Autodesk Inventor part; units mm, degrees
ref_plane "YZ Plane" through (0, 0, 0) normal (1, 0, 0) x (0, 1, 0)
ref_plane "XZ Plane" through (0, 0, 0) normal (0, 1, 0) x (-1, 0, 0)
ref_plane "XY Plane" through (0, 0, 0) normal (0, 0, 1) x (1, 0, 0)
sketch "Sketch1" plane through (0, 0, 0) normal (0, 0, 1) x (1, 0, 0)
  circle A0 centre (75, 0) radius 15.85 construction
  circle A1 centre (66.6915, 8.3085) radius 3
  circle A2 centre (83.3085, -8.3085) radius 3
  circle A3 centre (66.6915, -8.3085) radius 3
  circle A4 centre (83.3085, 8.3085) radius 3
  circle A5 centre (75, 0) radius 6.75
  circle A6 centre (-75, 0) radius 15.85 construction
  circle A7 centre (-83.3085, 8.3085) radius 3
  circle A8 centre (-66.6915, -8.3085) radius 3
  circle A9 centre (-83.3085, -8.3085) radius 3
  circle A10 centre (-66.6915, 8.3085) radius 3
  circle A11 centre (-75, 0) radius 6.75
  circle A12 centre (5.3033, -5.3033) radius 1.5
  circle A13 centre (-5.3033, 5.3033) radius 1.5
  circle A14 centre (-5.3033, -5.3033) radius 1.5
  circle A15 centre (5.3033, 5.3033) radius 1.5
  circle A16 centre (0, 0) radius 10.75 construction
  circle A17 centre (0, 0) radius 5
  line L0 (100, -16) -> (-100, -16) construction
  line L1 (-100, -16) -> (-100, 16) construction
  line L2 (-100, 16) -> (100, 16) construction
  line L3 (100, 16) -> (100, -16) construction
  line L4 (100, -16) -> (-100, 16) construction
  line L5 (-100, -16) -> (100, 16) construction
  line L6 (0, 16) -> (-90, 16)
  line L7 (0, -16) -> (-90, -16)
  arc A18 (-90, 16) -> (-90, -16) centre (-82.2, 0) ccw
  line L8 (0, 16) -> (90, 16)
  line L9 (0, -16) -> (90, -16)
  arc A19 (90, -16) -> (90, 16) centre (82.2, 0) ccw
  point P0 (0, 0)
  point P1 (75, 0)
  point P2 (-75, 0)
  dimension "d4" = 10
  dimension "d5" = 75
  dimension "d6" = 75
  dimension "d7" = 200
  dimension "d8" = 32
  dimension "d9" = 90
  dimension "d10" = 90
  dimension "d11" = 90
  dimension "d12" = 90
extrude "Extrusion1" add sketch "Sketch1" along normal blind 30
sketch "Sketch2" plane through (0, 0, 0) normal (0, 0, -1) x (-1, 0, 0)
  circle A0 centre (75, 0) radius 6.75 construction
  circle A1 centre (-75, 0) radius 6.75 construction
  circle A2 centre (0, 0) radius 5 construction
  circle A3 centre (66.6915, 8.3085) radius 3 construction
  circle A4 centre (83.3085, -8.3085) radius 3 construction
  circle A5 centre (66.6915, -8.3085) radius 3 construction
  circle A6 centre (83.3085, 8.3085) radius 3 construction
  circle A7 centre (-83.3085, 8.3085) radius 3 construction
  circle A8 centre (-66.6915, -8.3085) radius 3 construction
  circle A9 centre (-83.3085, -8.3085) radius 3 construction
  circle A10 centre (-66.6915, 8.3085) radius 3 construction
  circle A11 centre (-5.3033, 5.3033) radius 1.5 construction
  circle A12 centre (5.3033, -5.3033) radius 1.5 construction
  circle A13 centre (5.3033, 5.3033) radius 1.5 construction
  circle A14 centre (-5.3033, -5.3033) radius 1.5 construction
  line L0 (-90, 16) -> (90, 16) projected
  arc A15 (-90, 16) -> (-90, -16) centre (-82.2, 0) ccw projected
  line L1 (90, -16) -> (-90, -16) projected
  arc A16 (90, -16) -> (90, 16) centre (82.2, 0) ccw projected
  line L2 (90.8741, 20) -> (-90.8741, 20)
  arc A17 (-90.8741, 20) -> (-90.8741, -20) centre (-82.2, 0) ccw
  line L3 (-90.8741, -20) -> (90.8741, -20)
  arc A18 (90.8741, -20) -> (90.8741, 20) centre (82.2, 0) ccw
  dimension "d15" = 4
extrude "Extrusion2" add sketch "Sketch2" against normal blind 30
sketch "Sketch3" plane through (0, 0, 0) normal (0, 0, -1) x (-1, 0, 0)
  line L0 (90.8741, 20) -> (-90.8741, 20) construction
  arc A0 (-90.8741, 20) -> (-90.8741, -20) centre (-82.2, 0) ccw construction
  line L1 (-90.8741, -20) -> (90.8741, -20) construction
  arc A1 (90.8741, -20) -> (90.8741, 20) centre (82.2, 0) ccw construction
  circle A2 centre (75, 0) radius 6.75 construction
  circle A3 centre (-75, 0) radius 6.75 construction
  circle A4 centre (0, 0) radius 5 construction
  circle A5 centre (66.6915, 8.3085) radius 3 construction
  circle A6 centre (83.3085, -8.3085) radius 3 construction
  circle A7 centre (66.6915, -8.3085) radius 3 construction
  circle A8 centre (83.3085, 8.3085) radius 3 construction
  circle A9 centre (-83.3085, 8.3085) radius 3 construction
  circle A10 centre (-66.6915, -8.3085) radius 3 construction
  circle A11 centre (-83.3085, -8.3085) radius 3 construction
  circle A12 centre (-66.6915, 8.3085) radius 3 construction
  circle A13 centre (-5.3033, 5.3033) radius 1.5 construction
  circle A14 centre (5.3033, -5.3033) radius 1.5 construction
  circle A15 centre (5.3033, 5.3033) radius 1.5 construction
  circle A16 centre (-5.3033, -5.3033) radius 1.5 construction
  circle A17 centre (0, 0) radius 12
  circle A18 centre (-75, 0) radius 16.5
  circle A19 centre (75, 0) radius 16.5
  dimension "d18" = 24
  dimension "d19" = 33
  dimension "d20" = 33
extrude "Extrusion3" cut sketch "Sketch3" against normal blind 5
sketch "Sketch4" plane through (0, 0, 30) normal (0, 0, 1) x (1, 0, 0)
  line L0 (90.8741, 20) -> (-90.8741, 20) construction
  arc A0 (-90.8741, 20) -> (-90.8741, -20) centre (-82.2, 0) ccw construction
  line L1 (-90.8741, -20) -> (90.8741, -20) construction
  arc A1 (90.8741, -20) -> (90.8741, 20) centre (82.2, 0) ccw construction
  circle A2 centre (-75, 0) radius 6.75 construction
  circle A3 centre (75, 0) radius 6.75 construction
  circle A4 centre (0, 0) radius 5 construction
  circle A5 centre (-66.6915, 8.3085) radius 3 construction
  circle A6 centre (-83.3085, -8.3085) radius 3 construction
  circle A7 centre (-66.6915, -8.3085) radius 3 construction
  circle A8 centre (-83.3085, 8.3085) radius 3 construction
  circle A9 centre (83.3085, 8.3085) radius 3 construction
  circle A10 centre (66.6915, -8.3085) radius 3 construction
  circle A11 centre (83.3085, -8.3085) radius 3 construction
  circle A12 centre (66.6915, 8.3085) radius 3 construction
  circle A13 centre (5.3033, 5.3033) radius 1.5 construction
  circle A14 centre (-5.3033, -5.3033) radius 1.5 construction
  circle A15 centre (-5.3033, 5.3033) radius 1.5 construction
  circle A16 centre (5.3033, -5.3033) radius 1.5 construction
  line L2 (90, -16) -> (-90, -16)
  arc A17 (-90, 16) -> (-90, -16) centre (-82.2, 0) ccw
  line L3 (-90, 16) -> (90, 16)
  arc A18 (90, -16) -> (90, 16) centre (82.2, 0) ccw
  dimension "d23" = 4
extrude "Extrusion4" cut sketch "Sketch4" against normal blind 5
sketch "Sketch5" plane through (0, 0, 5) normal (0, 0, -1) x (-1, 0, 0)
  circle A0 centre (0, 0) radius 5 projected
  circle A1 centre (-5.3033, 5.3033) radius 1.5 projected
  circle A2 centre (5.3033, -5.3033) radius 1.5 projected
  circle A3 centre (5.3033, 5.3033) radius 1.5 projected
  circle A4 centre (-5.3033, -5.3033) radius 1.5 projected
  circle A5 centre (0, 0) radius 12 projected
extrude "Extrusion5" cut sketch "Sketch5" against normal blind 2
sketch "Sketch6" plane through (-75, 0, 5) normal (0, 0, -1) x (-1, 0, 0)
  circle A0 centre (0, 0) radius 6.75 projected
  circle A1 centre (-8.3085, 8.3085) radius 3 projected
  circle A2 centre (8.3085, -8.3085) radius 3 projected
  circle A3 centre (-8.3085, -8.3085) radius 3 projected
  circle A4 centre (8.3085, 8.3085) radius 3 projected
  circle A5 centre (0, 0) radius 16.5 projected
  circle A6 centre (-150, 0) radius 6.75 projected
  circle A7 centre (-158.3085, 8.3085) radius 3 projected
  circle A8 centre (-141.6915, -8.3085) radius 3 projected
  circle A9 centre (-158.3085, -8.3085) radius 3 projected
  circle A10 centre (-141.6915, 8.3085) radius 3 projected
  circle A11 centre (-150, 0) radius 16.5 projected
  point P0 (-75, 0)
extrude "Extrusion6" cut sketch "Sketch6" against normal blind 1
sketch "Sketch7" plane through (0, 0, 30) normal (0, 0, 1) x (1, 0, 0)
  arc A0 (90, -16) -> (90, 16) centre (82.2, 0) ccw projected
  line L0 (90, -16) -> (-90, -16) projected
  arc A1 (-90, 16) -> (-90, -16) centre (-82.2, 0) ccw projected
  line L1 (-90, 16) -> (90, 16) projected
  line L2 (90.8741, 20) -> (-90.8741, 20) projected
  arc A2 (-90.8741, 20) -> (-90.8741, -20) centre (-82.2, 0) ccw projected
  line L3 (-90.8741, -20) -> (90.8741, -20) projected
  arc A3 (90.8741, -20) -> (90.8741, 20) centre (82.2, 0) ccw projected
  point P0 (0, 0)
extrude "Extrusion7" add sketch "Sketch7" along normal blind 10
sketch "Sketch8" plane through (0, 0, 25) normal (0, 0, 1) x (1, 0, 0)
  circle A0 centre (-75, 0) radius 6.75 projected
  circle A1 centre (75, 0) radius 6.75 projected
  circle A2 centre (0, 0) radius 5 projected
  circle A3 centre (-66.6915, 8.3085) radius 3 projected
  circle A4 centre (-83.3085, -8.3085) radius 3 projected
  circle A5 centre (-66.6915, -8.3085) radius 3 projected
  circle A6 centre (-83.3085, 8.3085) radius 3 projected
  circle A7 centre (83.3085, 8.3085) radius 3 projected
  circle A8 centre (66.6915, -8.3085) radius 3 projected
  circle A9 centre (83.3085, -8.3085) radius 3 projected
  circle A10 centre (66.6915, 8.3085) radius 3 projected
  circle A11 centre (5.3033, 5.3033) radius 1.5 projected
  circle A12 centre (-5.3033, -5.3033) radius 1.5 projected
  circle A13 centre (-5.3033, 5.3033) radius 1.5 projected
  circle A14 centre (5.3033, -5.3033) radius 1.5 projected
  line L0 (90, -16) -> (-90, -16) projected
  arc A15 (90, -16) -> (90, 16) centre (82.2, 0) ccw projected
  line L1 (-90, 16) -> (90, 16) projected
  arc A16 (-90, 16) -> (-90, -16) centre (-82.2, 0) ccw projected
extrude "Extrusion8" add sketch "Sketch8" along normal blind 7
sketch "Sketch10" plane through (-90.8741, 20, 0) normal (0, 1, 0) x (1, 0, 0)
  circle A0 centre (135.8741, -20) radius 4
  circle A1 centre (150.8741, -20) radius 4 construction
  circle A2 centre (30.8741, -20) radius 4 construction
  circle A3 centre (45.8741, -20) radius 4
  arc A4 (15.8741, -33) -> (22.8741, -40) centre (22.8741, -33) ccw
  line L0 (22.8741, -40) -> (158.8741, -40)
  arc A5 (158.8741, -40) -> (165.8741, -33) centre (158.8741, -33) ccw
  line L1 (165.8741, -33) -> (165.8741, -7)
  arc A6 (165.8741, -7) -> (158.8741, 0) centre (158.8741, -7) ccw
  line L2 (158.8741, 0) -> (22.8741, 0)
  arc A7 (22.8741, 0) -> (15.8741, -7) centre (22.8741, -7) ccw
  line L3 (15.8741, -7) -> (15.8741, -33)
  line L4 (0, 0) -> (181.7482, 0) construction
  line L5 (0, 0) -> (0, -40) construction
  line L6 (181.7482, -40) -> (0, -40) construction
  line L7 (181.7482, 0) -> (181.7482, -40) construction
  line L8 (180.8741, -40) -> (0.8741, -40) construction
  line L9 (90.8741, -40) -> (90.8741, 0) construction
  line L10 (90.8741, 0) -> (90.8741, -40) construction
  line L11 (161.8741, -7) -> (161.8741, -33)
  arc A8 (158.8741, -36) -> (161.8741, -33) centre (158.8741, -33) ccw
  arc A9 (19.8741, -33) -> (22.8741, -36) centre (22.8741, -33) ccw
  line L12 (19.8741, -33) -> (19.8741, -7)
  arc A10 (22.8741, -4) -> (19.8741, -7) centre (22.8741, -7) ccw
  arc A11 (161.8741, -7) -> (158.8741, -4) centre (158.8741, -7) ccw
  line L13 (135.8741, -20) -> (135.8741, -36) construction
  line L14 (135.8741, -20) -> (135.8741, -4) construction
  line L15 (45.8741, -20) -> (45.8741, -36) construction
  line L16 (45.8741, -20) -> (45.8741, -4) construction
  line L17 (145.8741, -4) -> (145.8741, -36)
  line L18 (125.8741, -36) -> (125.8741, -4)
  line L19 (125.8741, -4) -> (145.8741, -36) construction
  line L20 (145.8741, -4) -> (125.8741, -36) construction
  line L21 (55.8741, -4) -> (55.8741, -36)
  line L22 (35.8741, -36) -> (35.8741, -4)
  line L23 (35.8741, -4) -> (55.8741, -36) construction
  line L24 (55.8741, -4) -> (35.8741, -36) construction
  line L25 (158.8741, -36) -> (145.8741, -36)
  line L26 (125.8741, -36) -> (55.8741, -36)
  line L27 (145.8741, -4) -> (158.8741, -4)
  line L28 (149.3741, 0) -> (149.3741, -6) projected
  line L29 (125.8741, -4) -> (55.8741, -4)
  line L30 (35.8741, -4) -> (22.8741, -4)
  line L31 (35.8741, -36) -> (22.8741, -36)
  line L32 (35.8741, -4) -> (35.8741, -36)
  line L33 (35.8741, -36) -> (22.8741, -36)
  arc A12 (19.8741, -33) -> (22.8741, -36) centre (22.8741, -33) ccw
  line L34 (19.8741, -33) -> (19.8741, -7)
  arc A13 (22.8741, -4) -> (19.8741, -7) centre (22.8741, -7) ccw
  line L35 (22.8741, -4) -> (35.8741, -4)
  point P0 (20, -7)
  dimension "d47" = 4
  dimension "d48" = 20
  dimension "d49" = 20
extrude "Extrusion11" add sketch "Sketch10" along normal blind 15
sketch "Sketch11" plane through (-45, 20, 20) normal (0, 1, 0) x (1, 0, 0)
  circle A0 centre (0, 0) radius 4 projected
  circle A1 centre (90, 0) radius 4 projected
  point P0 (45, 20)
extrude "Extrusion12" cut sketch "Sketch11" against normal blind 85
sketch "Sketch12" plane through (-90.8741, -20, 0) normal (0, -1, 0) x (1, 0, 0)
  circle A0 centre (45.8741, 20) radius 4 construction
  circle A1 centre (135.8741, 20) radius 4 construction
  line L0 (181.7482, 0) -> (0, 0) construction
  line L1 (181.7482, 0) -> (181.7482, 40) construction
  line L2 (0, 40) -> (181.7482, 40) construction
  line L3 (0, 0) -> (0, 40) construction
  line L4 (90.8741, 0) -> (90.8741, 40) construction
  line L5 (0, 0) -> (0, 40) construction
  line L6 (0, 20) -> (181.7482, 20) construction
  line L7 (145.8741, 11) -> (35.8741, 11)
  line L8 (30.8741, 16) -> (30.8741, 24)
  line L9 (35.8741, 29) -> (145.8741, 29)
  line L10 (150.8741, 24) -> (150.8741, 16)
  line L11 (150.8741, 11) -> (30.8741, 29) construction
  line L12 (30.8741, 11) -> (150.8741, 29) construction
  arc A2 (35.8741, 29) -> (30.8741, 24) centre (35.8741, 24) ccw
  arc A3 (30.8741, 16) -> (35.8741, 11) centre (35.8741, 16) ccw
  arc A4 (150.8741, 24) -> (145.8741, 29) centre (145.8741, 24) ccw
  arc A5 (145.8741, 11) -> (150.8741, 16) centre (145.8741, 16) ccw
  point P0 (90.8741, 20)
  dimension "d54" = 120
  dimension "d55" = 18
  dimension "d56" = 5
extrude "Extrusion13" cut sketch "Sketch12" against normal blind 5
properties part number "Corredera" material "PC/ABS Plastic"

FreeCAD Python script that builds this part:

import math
import FreeCAD as App
import Part
import Sketcher
from FreeCAD import Vector

doc = App.newDocument("Part")
params = doc.addObject("Spreadsheet::Sheet", "Params")
for row, (alias, value) in enumerate([
    ("sketch1_diameter", "10 mm"),
    ("sketch1_diameter2", "6 mm"),
    ("sketch1_diameter3", "3 mm"),
    ("sketch1_diameter4", "13.5 mm"),
    ("sketch1_radius", "17.8 mm"),
    ("pad1_length", "30 mm"),
    ("sketch2_radius", "21.8 mm"),
    ("sketch2_radius2", "17.8 mm"),
    ("sketch2_width", "180 mm"),
    ("pad2_length", "30 mm"),
    ("sketch3_diameter", "24 mm"),
    ("sketch3_diameter2", "33 mm"),
    ("pocket1_length", "5 mm"),
    ("sketch4_radius", "17.8 mm"),
    ("sketch4_width", "180 mm"),
    ("pocket2_length", "5 mm"),
    ("sketch5_diameter", "24 mm"),
    ("sketch5_diameter2", "3 mm"),
    ("sketch5_diameter3", "10 mm"),
    ("pocket3_length", "2 mm"),
    ("sketch6_diameter", "33 mm"),
    ("sketch6_diameter2", "6 mm"),
    ("sketch6_diameter3", "13.5 mm"),
    ("pocket4_length", "1 mm"),
    ("sketch7_radius", "21.8 mm"),
    ("sketch7_radius2", "17.8 mm"),
    ("sketch7_width", "180 mm"),
    ("pad3_length", "10 mm"),
    ("sketch8_diameter", "6 mm"),
    ("sketch8_diameter2", "3 mm"),
    ("sketch8_diameter3", "10 mm"),
    ("sketch8_diameter4", "13.5 mm"),
    ("sketch8_radius", "17.8 mm"),
    ("pad4_length", "7 mm"),
    ("sketch9_diameter", "8 mm"),
    ("sketch9_radius", "7 mm"),
    ("sketch9_width", "136 mm"),
    ("sketch9_width2", "13 mm"),
    ("sketch9_width3", "70 mm"),
    ("pad5_length", "15 mm"),
    ("sketch10_diameter", "8 mm"),
    ("pocket5_length", "85 mm"),
    ("sketch11_radius", "5 mm"),
    ("sketch11_width", "110 mm"),
    ("pocket6_length", "5 mm"),
], start=1):
    params.set(f"A{row}", alias)
    params.set(f"B{row}", "=" + value)
    params.setAlias(f"B{row}", alias)

body = doc.addObject("PartDesign::Body", "Body")

# Sketch on XY plane
sketch1 = body.newObject("Sketcher::SketchObject", "Sketch")
sketch1.AttachmentSupport = (doc.getObject("XY_Plane"), [""])
sketch1.MapMode = "FlatFace"
sketch1.addGeometry(Part.LineSegment(Vector(90, 16, 0), Vector(-90, 16, 0)), False)
sketch1.addGeometry(Part.ArcOfCircle(Part.Circle(Vector(-82.2, 0, 0), Vector(0, 0, 1), 17.8), math.radians(115.989234), math.radians(244.010766)), False)
sketch1.addGeometry(Part.LineSegment(Vector(-90, -16, 0), Vector(90, -16, 0)), False)
sketch1.addGeometry(Part.ArcOfCircle(Part.Circle(Vector(82.2, 0, 0), Vector(0, 0, 1), 17.8), math.radians(-64.010766), math.radians(64.010766)), False)
sketch1.addGeometry(Part.Circle(Vector(-83.3085, -8.3085, 0), Vector(0, 0, 1), 3), False)
sketch1.addGeometry(Part.Circle(Vector(-66.6915, -8.3085, 0), Vector(0, 0, 1), 3), False)
sketch1.addGeometry(Part.Circle(Vector(-5.3033, -5.3033, 0), Vector(0, 0, 1), 1.5), False)
sketch1.addGeometry(Part.Circle(Vector(66.6915, -8.3085, 0), Vector(0, 0, 1), 3), False)
sketch1.addGeometry(Part.Circle(Vector(83.3085, -8.3085, 0), Vector(0, 0, 1), 3), False)
sketch1.addGeometry(Part.Circle(Vector(5.3033, -5.3033, 0), Vector(0, 0, 1), 1.5), False)
sketch1.addGeometry(Part.Circle(Vector(-75, 0, 0), Vector(0, 0, 1), 6.75), False)
sketch1.addGeometry(Part.Circle(Vector(-5.3033, 5.3033, 0), Vector(0, 0, 1), 1.5), False)
sketch1.addGeometry(Part.Circle(Vector(-83.3085, 8.3085, 0), Vector(0, 0, 1), 3), False)
sketch1.addGeometry(Part.Circle(Vector(-66.6915, 8.3085, 0), Vector(0, 0, 1), 3), False)
sketch1.addGeometry(Part.Circle(Vector(0, 0, 0), Vector(0, 0, 1), 5), False)
sketch1.addGeometry(Part.Circle(Vector(5.3033, 5.3033, 0), Vector(0, 0, 1), 1.5), False)
sketch1.addGeometry(Part.Circle(Vector(75, 0, 0), Vector(0, 0, 1), 6.75), False)
sketch1.addGeometry(Part.Circle(Vector(66.6915, 8.3085, 0), Vector(0, 0, 1), 3), False)
sketch1.addGeometry(Part.Circle(Vector(83.3085, 8.3085, 0), Vector(0, 0, 1), 3), False)
sketch1.addConstraint(Sketcher.Constraint("Coincident", 0, 2, 1, 1))
sketch1.addConstraint(Sketcher.Constraint("Coincident", 1, 2, 2, 1))
sketch1.addConstraint(Sketcher.Constraint("Coincident", 2, 2, 3, 1))
sketch1.addConstraint(Sketcher.Constraint("Coincident", 3, 2, 0, 1))
sketch1.addConstraint(Sketcher.Constraint("Horizontal", 0))
sketch1.addConstraint(Sketcher.Constraint("Horizontal", 2))
sketch1.addConstraint(Sketcher.Constraint("Coincident", 14, 3, -1, 1))
sketch1.addConstraint(Sketcher.Constraint("Equal", 1, 3))
sketch1.addConstraint(Sketcher.Constraint("Equal", 4, 5))
sketch1.addConstraint(Sketcher.Constraint("Equal", 5, 7))
sketch1.addConstraint(Sketcher.Constraint("Equal", 7, 8))
sketch1.addConstraint(Sketcher.Constraint("Equal", 6, 9))
sketch1.addConstraint(Sketcher.Constraint("Equal", 9, 11))
sketch1.addConstraint(Sketcher.Constraint("Equal", 8, 12))
sketch1.addConstraint(Sketcher.Constraint("Equal", 12, 13))
sketch1.addConstraint(Sketcher.Constraint("Equal", 11, 15))
sketch1.addConstraint(Sketcher.Constraint("Equal", 10, 16))
sketch1.addConstraint(Sketcher.Constraint("Equal", 13, 17))
sketch1.addConstraint(Sketcher.Constraint("Equal", 17, 18))
sketch1.addConstraint(Sketcher.Constraint("Symmetric", 1, 3, 3, 3, -1, 1))
sketch1.addConstraint(Sketcher.Constraint("Symmetric", 9, 3, 11, 3, -1, 1))
sketch1.addConstraint(Sketcher.Constraint("Symmetric", 8, 3, 12, 3, -1, 1))
sketch1.addConstraint(Sketcher.Constraint("Symmetric", 7, 3, 13, 3, -1, 1))
sketch1.addConstraint(Sketcher.Constraint("Symmetric", 6, 3, 15, 3, -1, 1))
sketch1.addConstraint(Sketcher.Constraint("Symmetric", 10, 3, 16, 3, -1, 1))
sketch1.addConstraint(Sketcher.Constraint("Symmetric", 5, 3, 17, 3, -1, 1))
sketch1.addConstraint(Sketcher.Constraint("Symmetric", 4, 3, 18, 3, -1, 1))
sketch1.addConstraint(Sketcher.Constraint("Symmetric", 5, 3, 7, 3, -2))
sketch1.addConstraint(Sketcher.Constraint("Symmetric", 4, 3, 8, 3, -2))
sketch1.addConstraint(Sketcher.Constraint("Symmetric", 6, 3, 9, 3, -2))
sketch1.addConstraint(Sketcher.Constraint("Symmetric", 0, 2, 1, 2, -1))
sketch1.addConstraint(Sketcher.Constraint("PointOnObject", 10, 3, -1))
sketch1.addConstraint(Sketcher.Constraint("Horizontal", 4, 3, 5, 3))
sketch1.addConstraint(Sketcher.Constraint("Diameter", 14, 10.0))
sketch1.addConstraint(Sketcher.Constraint("Diameter", 4, 6.0))
sketch1.addConstraint(Sketcher.Constraint("Diameter", 6, 3.0))
sketch1.addConstraint(Sketcher.Constraint("DistanceX", 10, 3, -1, 1, 75.0))
sketch1.addConstraint(Sketcher.Constraint("DistanceX", 0, 2, -1, 1, 90.0))
sketch1.addConstraint(Sketcher.Constraint("Diameter", 10, 13.5))
sketch1.addConstraint(Sketcher.Constraint("Radius", 1, 17.8))
sketch1.addConstraint(Sketcher.Constraint("DistanceY", -1, 1, 0, 2, 16.0))
sketch1.addConstraint(Sketcher.Constraint("DistanceX", 4, 3, 7, 3, 150.0))
sketch1.addConstraint(Sketcher.Constraint("DistanceX", 4, 3, 5, 3, 16.617))
sketch1.addConstraint(Sketcher.Constraint("DistanceY", 4, 3, 12, 3, 16.617))
sketch1.addConstraint(Sketcher.Constraint("DistanceX", 6, 3, -1, 1, 5.3033))
sketch1.addConstraint(Sketcher.Constraint("DistanceY", 6, 3, -1, 1, 5.3033))
sketch1.setExpression("Constraints[33]", "Params.sketch1_diameter")
sketch1.setExpression("Constraints[34]", "Params.sketch1_diameter2")
sketch1.setExpression("Constraints[35]", "Params.sketch1_diameter3")
sketch1.setExpression("Constraints[38]", "Params.sketch1_diameter4")
sketch1.setExpression("Constraints[39]", "Params.sketch1_radius")
pad1 = body.newObject("PartDesign::Pad", "Pad")
pad1.Profile = sketch1
pad1.setExpression("Length", "Params.pad1_length")

# Sketch on XY plane
sketch2 = body.newObject("Sketcher::SketchObject", "Sketch001")
sketch2.AttachmentSupport = (doc.getObject("XY_Plane"), [""])
sketch2.MapMode = "FlatFace"
sketch2.addGeometry(Part.ArcOfCircle(Part.Circle(Vector(-82.2, 0, 0), Vector(0, 0, 1), 21.8), math.radians(113.446619), math.radians(246.553381)), False)
sketch2.addGeometry(Part.LineSegment(Vector(-90.8741, 20, 0), Vector(90.8741, 20, 0)), False)
sketch2.addGeometry(Part.ArcOfCircle(Part.Circle(Vector(82.2, 0, 0), Vector(0, 0, 1), 21.8), math.radians(-66.553381), math.radians(66.553381)), False)
sketch2.addGeometry(Part.LineSegment(Vector(90.8741, -20, 0), Vector(-90.8741, -20, 0)), False)
sketch2.addGeometry(Part.ArcOfCircle(Part.Circle(Vector(82.2, 0, 0), Vector(0, 0, 1), 17.8), math.radians(-64.010766), math.radians(64.010766)), False)
sketch2.addGeometry(Part.LineSegment(Vector(90, 16, 0), Vector(-90, 16, 0)), False)
sketch2.addGeometry(Part.ArcOfCircle(Part.Circle(Vector(-82.2, 0, 0), Vector(0, 0, 1), 17.8), math.radians(115.989234), math.radians(244.010766)), False)
sketch2.addGeometry(Part.LineSegment(Vector(-90, -16, 0), Vector(90, -16, 0)), False)
sketch2.addConstraint(Sketcher.Constraint("Coincident", 0, 1, 1, 1))
sketch2.addConstraint(Sketcher.Constraint("Coincident", 1, 2, 2, 2))
sketch2.addConstraint(Sketcher.Constraint("Coincident", 2, 1, 3, 1))
sketch2.addConstraint(Sketcher.Constraint("Coincident", 3, 2, 0, 2))
sketch2.addConstraint(Sketcher.Constraint("Coincident", 4, 2, 5, 1))
sketch2.addConstraint(Sketcher.Constraint("Coincident", 5, 2, 6, 1))
sketch2.addConstraint(Sketcher.Constraint("Coincident", 6, 2, 7, 1))
sketch2.addConstraint(Sketcher.Constraint("Coincident", 7, 2, 4, 1))
sketch2.addConstraint(Sketcher.Constraint("Horizontal", 1))
sketch2.addConstraint(Sketcher.Constraint("Horizontal", 3))
sketch2.addConstraint(Sketcher.Constraint("Horizontal", 5))
sketch2.addConstraint(Sketcher.Constraint("Horizontal", 7))
sketch2.addConstraint(Sketcher.Constraint("Coincident", 4, 3, 2, 3))
sketch2.addConstraint(Sketcher.Constraint("Coincident", 6, 3, 0, 3))
sketch2.addConstraint(Sketcher.Constraint("Equal", 0, 2))
sketch2.addConstraint(Sketcher.Constraint("Equal", 4, 6))
sketch2.addConstraint(Sketcher.Constraint("Symmetric", 0, 3, 2, 3, -1, 1))
sketch2.addConstraint(Sketcher.Constraint("Symmetric", 1, 2, 2, 1, -1))
sketch2.addConstraint(Sketcher.Constraint("Vertical", 5, 2, 6, 2))
sketch2.addConstraint(Sketcher.Constraint("DistanceY", 4, 2, 1, 2, 4.0))
sketch2.addConstraint(Sketcher.Constraint("Radius", 0, 21.8))
sketch2.addConstraint(Sketcher.Constraint("Radius", 4, 17.8))
sketch2.addConstraint(Sketcher.Constraint("DistanceX", 5, 2, 5, 1, 180.0))
sketch2.addConstraint(Sketcher.Constraint("DistanceY", -1, 1, 0, 1, 20.0))
sketch2.setExpression("Constraints[20]", "Params.sketch2_radius")
sketch2.setExpression("Constraints[21]", "Params.sketch2_radius2")
sketch2.setExpression("Constraints[22]", "Params.sketch2_width")
pad2 = body.newObject("PartDesign::Pad", "Pad001")
pad2.Profile = sketch2
pad2.setExpression("Length", "Params.pad2_length")

# Sketch on XY plane
sketch3 = body.newObject("Sketcher::SketchObject", "Sketch002")
sketch3.AttachmentSupport = (doc.getObject("XY_Plane"), [""])
sketch3.MapMode = "FlatFace"
sketch3.addGeometry(Part.Circle(Vector(0, 0, 0), Vector(0, 0, 1), 12), False)
sketch3.addGeometry(Part.Circle(Vector(75, 0, 0), Vector(0, 0, 1), 16.5), False)
sketch3.addGeometry(Part.Circle(Vector(-75, 0, 0), Vector(0, 0, 1), 16.5), False)
sketch3.addConstraint(Sketcher.Constraint("Coincident", 0, 3, -1, 1))
sketch3.addConstraint(Sketcher.Constraint("Equal", 1, 2))
sketch3.addConstraint(Sketcher.Constraint("Symmetric", 1, 3, 2, 3, -1, 1))
sketch3.addConstraint(Sketcher.Constraint("PointOnObject", 1, 3, -1))
sketch3.addConstraint(Sketcher.Constraint("Diameter", 0, 24.0))
sketch3.addConstraint(Sketcher.Constraint("Diameter", 1, 33.0))
sketch3.addConstraint(Sketcher.Constraint("DistanceX", -1, 1, 1, 3, 75.0))
sketch3.setExpression("Constraints[4]", "Params.sketch3_diameter")
sketch3.setExpression("Constraints[5]", "Params.sketch3_diameter2")
pocket1 = body.newObject("PartDesign::Pocket", "Pocket")
pocket1.Profile = sketch3
pocket1.setExpression("Length", "Params.pocket1_length")
pocket1.Reversed = True

# Sketch on XY plane
sketch4 = body.newObject("Sketcher::SketchObject", "Sketch003")
sketch4.AttachmentSupport = (doc.getObject("XY_Plane"), [""])
sketch4.MapMode = "FlatFace"
sketch4.AttachmentOffset = App.Placement(Vector(0, 0, 30), App.Rotation())
sketch4.addGeometry(Part.LineSegment(Vector(-90, -16, 0), Vector(90, -16, 0)), False)
sketch4.addGeometry(Part.ArcOfCircle(Part.Circle(Vector(82.2, 0, 0), Vector(0, 0, 1), 17.8), math.radians(-64.010766), math.radians(64.010766)), False)
sketch4.addGeometry(Part.LineSegment(Vector(90, 16, 0), Vector(-90, 16, 0)), False)
sketch4.addGeometry(Part.ArcOfCircle(Part.Circle(Vector(-82.2, 0, 0), Vector(0, 0, 1), 17.8), math.radians(115.989234), math.radians(244.010766)), False)
sketch4.addConstraint(Sketcher.Constraint("Coincident", 0, 2, 1, 1))
sketch4.addConstraint(Sketcher.Constraint("Coincident", 1, 2, 2, 1))
sketch4.addConstraint(Sketcher.Constraint("Coincident", 2, 2, 3, 1))
sketch4.addConstraint(Sketcher.Constraint("Coincident", 3, 2, 0, 1))
sketch4.addConstraint(Sketcher.Constraint("Horizontal", 0))
sketch4.addConstraint(Sketcher.Constraint("Horizontal", 2))
sketch4.addConstraint(Sketcher.Constraint("Equal", 1, 3))
sketch4.addConstraint(Sketcher.Constraint("Symmetric", 1, 3, 3, 3, -1, 1))
sketch4.addConstraint(Sketcher.Constraint("Symmetric", 0, 2, 1, 2, -1))
sketch4.addConstraint(Sketcher.Constraint("Radius", 1, 17.8))
sketch4.addConstraint(Sketcher.Constraint("DistanceX", 0, 1, 0, 2, 180.0))
sketch4.addConstraint(Sketcher.Constraint("DistanceY", 0, 2, -1, 1, 16.0))
sketch4.setExpression("Constraints[9]", "Params.sketch4_radius")
sketch4.setExpression("Constraints[10]", "Params.sketch4_width")
pocket2 = body.newObject("PartDesign::Pocket", "Pocket001")
pocket2.Profile = sketch4
pocket2.setExpression("Length", "Params.pocket2_length")

# Sketch on XY plane
sketch5 = body.newObject("Sketcher::SketchObject", "Sketch004")
sketch5.AttachmentSupport = (doc.getObject("XY_Plane"), [""])
sketch5.MapMode = "FlatFace"
sketch5.AttachmentOffset = App.Placement(Vector(0, 0, 5), App.Rotation())
sketch5.addGeometry(Part.Circle(Vector(0, 0, 0), Vector(0, 0, 1), 12), False)
sketch5.addGeometry(Part.Circle(Vector(5.3033, -5.3033, 0), Vector(0, 0, 1), 1.5), False)
sketch5.addGeometry(Part.Circle(Vector(-5.3033, -5.3033, 0), Vector(0, 0, 1), 1.5), False)
sketch5.addGeometry(Part.Circle(Vector(5.3033, 5.3033, 0), Vector(0, 0, 1), 1.5), False)
sketch5.addGeometry(Part.Circle(Vector(0, 0, 0), Vector(0, 0, 1), 5), False)
sketch5.addGeometry(Part.Circle(Vector(-5.3033, 5.3033, 0), Vector(0, 0, 1), 1.5), False)
sketch5.addConstraint(Sketcher.Constraint("Coincident", 0, 3, -1, 1))
sketch5.addConstraint(Sketcher.Constraint("Coincident", 4, 3, -1, 1))
sketch5.addConstraint(Sketcher.Constraint("Equal", 1, 2))
sketch5.addConstraint(Sketcher.Constraint("Equal", 2, 3))
sketch5.addConstraint(Sketcher.Constraint("Equal", 3, 5))
sketch5.addConstraint(Sketcher.Constraint("Symmetric", 2, 3, 3, 3, -1, 1))
sketch5.addConstraint(Sketcher.Constraint("Symmetric", 1, 3, 5, 3, -1, 1))
sketch5.addConstraint(Sketcher.Constraint("Symmetric", 1, 3, 2, 3, -2))
sketch5.addConstraint(Sketcher.Constraint("Diameter", 0, 24.0))
sketch5.addConstraint(Sketcher.Constraint("Diameter", 1, 3.0))
sketch5.addConstraint(Sketcher.Constraint("Diameter", 4, 10.0))
sketch5.addConstraint(Sketcher.Constraint("DistanceX", -1, 1, 1, 3, 5.3033))
sketch5.addConstraint(Sketcher.Constraint("DistanceY", 1, 3, -1, 1, 5.3033))
sketch5.setExpression("Constraints[8]", "Params.sketch5_diameter")
sketch5.setExpression("Constraints[9]", "Params.sketch5_diameter2")
sketch5.setExpression("Constraints[10]", "Params.sketch5_diameter3")
pocket3 = body.newObject("PartDesign::Pocket", "Pocket002")
pocket3.Profile = sketch5
pocket3.setExpression("Length", "Params.pocket3_length")
pocket3.Reversed = True

# Sketch on XY plane
sketch6 = body.newObject("Sketcher::SketchObject", "Sketch005")
sketch6.AttachmentSupport = (doc.getObject("XY_Plane"), [""])
sketch6.MapMode = "FlatFace"
sketch6.AttachmentOffset = App.Placement(Vector(0, 0, 5), App.Rotation())
sketch6.addGeometry(Part.Circle(Vector(-75, 0, 0), Vector(0, 0, 1), 16.5), False)
sketch6.addGeometry(Part.Circle(Vector(-66.6915, -8.3085, 0), Vector(0, 0, 1), 3), False)
sketch6.addGeometry(Part.Circle(Vector(-83.3085, -8.3085, 0), Vector(0, 0, 1), 3), False)
sketch6.addGeometry(Part.Circle(Vector(-75, 0, 0), Vector(0, 0, 1), 6.75), False)
sketch6.addGeometry(Part.Circle(Vector(-66.6915, 8.3085, 0), Vector(0, 0, 1), 3), False)
sketch6.addGeometry(Part.Circle(Vector(-83.3085, 8.3085, 0), Vector(0, 0, 1), 3), False)
sketch6.addGeometry(Part.Circle(Vector(75, 0, 0), Vector(0, 0, 1), 16.5), False)
sketch6.addGeometry(Part.Circle(Vector(83.3085, -8.3085, 0), Vector(0, 0, 1), 3), False)
sketch6.addGeometry(Part.Circle(Vector(66.6915, -8.3085, 0), Vector(0, 0, 1), 3), False)
sketch6.addGeometry(Part.Circle(Vector(75, 0, 0), Vector(0, 0, 1), 6.75), False)
sketch6.addGeometry(Part.Circle(Vector(83.3085, 8.3085, 0), Vector(0, 0, 1), 3), False)
sketch6.addGeometry(Part.Circle(Vector(66.6915, 8.3085, 0), Vector(0, 0, 1), 3), False)
sketch6.addConstraint(Sketcher.Constraint("Coincident", 3, 3, 0, 3))
sketch6.addConstraint(Sketcher.Constraint("Coincident", 9, 3, 6, 3))
sketch6.addConstraint(Sketcher.Constraint("Equal", 1, 2))
sketch6.addConstraint(Sketcher.Constraint("Equal", 2, 4))
sketch6.addConstraint(Sketcher.Constraint("Equal", 4, 5))
sketch6.addConstraint(Sketcher.Constraint("Equal", 0, 6))
sketch6.addConstraint(Sketcher.Constraint("Equal", 5, 7))
sketch6.addConstraint(Sketcher.Constraint("Equal", 7, 8))
sketch6.addConstraint(Sketcher.Constraint("Equal", 3, 9))
sketch6.addConstraint(Sketcher.Constraint("Equal", 8, 10))
sketch6.addConstraint(Sketcher.Constraint("Equal", 10, 11))
sketch6.addConstraint(Sketcher.Constraint("Symmetric", 0, 3, 6, 3, -1, 1))
sketch6.addConstraint(Sketcher.Constraint("Symmetric", 5, 3, 7, 3, -1, 1))
sketch6.addConstraint(Sketcher.Constraint("Symmetric", 4, 3, 8, 3, -1, 1))
sketch6.addConstraint(Sketcher.Constraint("Symmetric", 2, 3, 10, 3, -1, 1))
sketch6.addConstraint(Sketcher.Constraint("Symmetric", 1, 3, 11, 3, -1, 1))
sketch6.addConstraint(Sketcher.Constraint("Symmetric", 2, 3, 7, 3, -2))
sketch6.addConstraint(Sketcher.Constraint("Symmetric", 1, 3, 8, 3, -2))
sketch6.addConstraint(Sketcher.Constraint("PointOnObject", 0, 3, -1))
sketch6.addConstraint(Sketcher.Constraint("Horizontal", 1, 3, 2, 3))
sketch6.addConstraint(Sketcher.Constraint("Diameter", 0, 33.0))
sketch6.addConstraint(Sketcher.Constraint("Diameter", 1, 6.0))
sketch6.addConstraint(Sketcher.Constraint("Diameter", 3, 13.5))
sketch6.addConstraint(Sketcher.Constraint("DistanceX", 0, 3, -1, 1, 75.0))
sketch6.addConstraint(Sketcher.Constraint("DistanceX", 1, 3, 7, 3, 150.0))
sketch6.addConstraint(Sketcher.Constraint("DistanceX", 2, 3, 1, 3, 16.617))
sketch6.addConstraint(Sketcher.Constraint("DistanceY", 1, 3, 4, 3, 16.617))
sketch6.setExpression("Constraints[20]", "Params.sketch6_diameter")
sketch6.setExpression("Constraints[21]", "Params.sketch6_diameter2")
sketch6.setExpression("Constraints[22]", "Params.sketch6_diameter3")
pocket4 = body.newObject("PartDesign::Pocket", "Pocket003")
pocket4.Profile = sketch6
pocket4.setExpression("Length", "Params.pocket4_length")
pocket4.Reversed = True

# Sketch on XY plane
sketch7 = body.newObject("Sketcher::SketchObject", "Sketch006")
sketch7.AttachmentSupport = (doc.getObject("XY_Plane"), [""])
sketch7.MapMode = "FlatFace"
sketch7.AttachmentOffset = App.Placement(Vector(0, 0, 30), App.Rotation())
sketch7.addGeometry(Part.ArcOfCircle(Part.Circle(Vector(82.2, 0, 0), Vector(0, 0, 1), 21.8), math.radians(-66.553381), math.radians(66.553381)), False)
sketch7.addGeometry(Part.LineSegment(Vector(90.8741, 20, 0), Vector(-90.8741, 20, 0)), False)
sketch7.addGeometry(Part.ArcOfCircle(Part.Circle(Vector(-82.2, 0, 0), Vector(0, 0, 1), 21.8), math.radians(113.446619), math.radians(246.553381)), False)
sketch7.addGeometry(Part.LineSegment(Vector(-90.8741, -20, 0), Vector(90.8741, -20, 0)), False)
sketch7.addGeometry(Part.ArcOfCircle(Part.Circle(Vector(82.2, 0, 0), Vector(0, 0, 1), 17.8), math.radians(-64.010766), math.radians(64.010766)), False)
sketch7.addGeometry(Part.LineSegment(Vector(90, -16, 0), Vector(-90, -16, 0)), False)
sketch7.addGeometry(Part.ArcOfCircle(Part.Circle(Vector(-82.2, 0, 0), Vector(0, 0, 1), 17.8), math.radians(115.989234), math.radians(244.010766)), False)
sketch7.addGeometry(Part.LineSegment(Vector(-90, 16, 0), Vector(90, 16, 0)), False)
sketch7.addConstraint(Sketcher.Constraint("Coincident", 0, 2, 1, 1))
sketch7.addConstraint(Sketcher.Constraint("Coincident", 1, 2, 2, 1))
sketch7.addConstraint(Sketcher.Constraint("Coincident", 2, 2, 3, 1))
sketch7.addConstraint(Sketcher.Constraint("Coincident", 3, 2, 0, 1))
sketch7.addConstraint(Sketcher.Constraint("Coincident", 4, 1, 5, 1))
sketch7.addConstraint(Sketcher.Constraint("Coincident", 5, 2, 6, 2))
sketch7.addConstraint(Sketcher.Constraint("Coincident", 6, 1, 7, 1))
sketch7.addConstraint(Sketcher.Constraint("Coincident", 7, 2, 4, 2))
sketch7.addConstraint(Sketcher.Constraint("Horizontal", 1))
sketch7.addConstraint(Sketcher.Constraint("Horizontal", 3))
sketch7.addConstraint(Sketcher.Constraint("Horizontal", 5))
sketch7.addConstraint(Sketcher.Constraint("Horizontal", 7))
sketch7.addConstraint(Sketcher.Constraint("Coincident", 4, 3, 0, 3))
sketch7.addConstraint(Sketcher.Constraint("Coincident", 6, 3, 2, 3))
sketch7.addConstraint(Sketcher.Constraint("Equal", 0, 2))
sketch7.addConstraint(Sketcher.Constraint("Equal", 4, 6))
sketch7.addConstraint(Sketcher.Constraint("Symmetric", 0, 3, 2, 3, -1, 1))
sketch7.addConstraint(Sketcher.Constraint("Symmetric", 1, 2, 2, 2, -1))
sketch7.addConstraint(Sketcher.Constraint("Vertical", 5, 2, 6, 1))
sketch7.addConstraint(Sketcher.Constraint("Radius", 0, 21.8))
sketch7.addConstraint(Sketcher.Constraint("Radius", 4, 17.8))
sketch7.addConstraint(Sketcher.Constraint("DistanceX", 5, 2, 5, 1, 180.0))
sketch7.addConstraint(Sketcher.Constraint("DistanceY", -1, 1, 0, 2, 20.0))
sketch7.addConstraint(Sketcher.Constraint("DistanceY", 4, 1, -1, 1, 16.0))
sketch7.setExpression("Constraints[19]", "Params.sketch7_radius")
sketch7.setExpression("Constraints[20]", "Params.sketch7_radius2")
sketch7.setExpression("Constraints[21]", "Params.sketch7_width")
pad3 = body.newObject("PartDesign::Pad", "Pad002")
pad3.Profile = sketch7
pad3.setExpression("Length", "Params.pad3_length")

# Sketch on XY plane
sketch8 = body.newObject("Sketcher::SketchObject", "Sketch007")
sketch8.AttachmentSupport = (doc.getObject("XY_Plane"), [""])
sketch8.MapMode = "FlatFace"
sketch8.AttachmentOffset = App.Placement(Vector(0, 0, 25), App.Rotation())
sketch8.addGeometry(Part.LineSegment(Vector(-90, -16, 0), Vector(90, -16, 0)), False)
sketch8.addGeometry(Part.ArcOfCircle(Part.Circle(Vector(82.2, 0, 0), Vector(0, 0, 1), 17.8), math.radians(-64.010766), math.radians(64.010766)), False)
sketch8.addGeometry(Part.LineSegment(Vector(90, 16, 0), Vector(-90, 16, 0)), False)
sketch8.addGeometry(Part.ArcOfCircle(Part.Circle(Vector(-82.2, 0, 0), Vector(0, 0, 1), 17.8), math.radians(115.989234), math.radians(244.010766)), False)
sketch8.addGeometry(Part.Circle(Vector(-83.3085, -8.3085, 0), Vector(0, 0, 1), 3), False)
sketch8.addGeometry(Part.Circle(Vector(-66.6915, -8.3085, 0), Vector(0, 0, 1), 3), False)
sketch8.addGeometry(Part.Circle(Vector(-5.3033, -5.3033, 0), Vector(0, 0, 1), 1.5), False)
sketch8.addGeometry(Part.Circle(Vector(66.6915, -8.3085, 0), Vector(0, 0, 1), 3), False)
sketch8.addGeometry(Part.Circle(Vector(83.3085, -8.3085, 0), Vector(0, 0, 1), 3), False)
sketch8.addGeometry(Part.Circle(Vector(5.3033, -5.3033, 0), Vector(0, 0, 1), 1.5), False)
sketch8.addGeometry(Part.Circle(Vector(-75, 0, 0), Vector(0, 0, 1), 6.75), False)
sketch8.addGeometry(Part.Circle(Vector(-5.3033, 5.3033, 0), Vector(0, 0, 1), 1.5), False)
sketch8.addGeometry(Part.Circle(Vector(-83.3085, 8.3085, 0), Vector(0, 0, 1), 3), False)
sketch8.addGeometry(Part.Circle(Vector(-66.6915, 8.3085, 0), Vector(0, 0, 1), 3), False)
sketch8.addGeometry(Part.Circle(Vector(0, 0, 0), Vector(0, 0, 1), 5), False)
sketch8.addGeometry(Part.Circle(Vector(5.3033, 5.3033, 0), Vector(0, 0, 1), 1.5), False)
sketch8.addGeometry(Part.Circle(Vector(75, 0, 0), Vector(0, 0, 1), 6.75), False)
sketch8.addGeometry(Part.Circle(Vector(66.6915, 8.3085, 0), Vector(0, 0, 1), 3), False)
sketch8.addGeometry(Part.Circle(Vector(83.3085, 8.3085, 0), Vector(0, 0, 1), 3), False)
sketch8.addConstraint(Sketcher.Constraint("Coincident", 0, 2, 1, 1))
sketch8.addConstraint(Sketcher.Constraint("Coincident", 1, 2, 2, 1))
sketch8.addConstraint(Sketcher.Constraint("Coincident", 2, 2, 3, 1))
sketch8.addConstraint(Sketcher.Constraint("Coincident", 3, 2, 0, 1))
sketch8.addConstraint(Sketcher.Constraint("Horizontal", 0))
sketch8.addConstraint(Sketcher.Constraint("Horizontal", 2))
sketch8.addConstraint(Sketcher.Constraint("Coincident", 14, 3, -1, 1))
sketch8.addConstraint(Sketcher.Constraint("Equal", 1, 3))
sketch8.addConstraint(Sketcher.Constraint("Equal", 4, 5))
sketch8.addConstraint(Sketcher.Constraint("Equal", 5, 7))
sketch8.addConstraint(Sketcher.Constraint("Equal", 7, 8))
sketch8.addConstraint(Sketcher.Constraint("Equal", 6, 9))
sketch8.addConstraint(Sketcher.Constraint("Equal", 9, 11))
sketch8.addConstraint(Sketcher.Constraint("Equal", 8, 12))
sketch8.addConstraint(Sketcher.Constraint("Equal", 12, 13))
sketch8.addConstraint(Sketcher.Constraint("Equal", 11, 15))
sketch8.addConstraint(Sketcher.Constraint("Equal", 10, 16))
sketch8.addConstraint(Sketcher.Constraint("Equal", 13, 17))
sketch8.addConstraint(Sketcher.Constraint("Equal", 17, 18))
sketch8.addConstraint(Sketcher.Constraint("Symmetric", 1, 3, 3, 3, -1, 1))
sketch8.addConstraint(Sketcher.Constraint("Symmetric", 9, 3, 11, 3, -1, 1))
sketch8.addConstraint(Sketcher.Constraint("Symmetric", 8, 3, 12, 3, -1, 1))
sketch8.addConstraint(Sketcher.Constraint("Symmetric", 7, 3, 13, 3, -1, 1))
sketch8.addConstraint(Sketcher.Constraint("Symmetric", 6, 3, 15, 3, -1, 1))
sketch8.addConstraint(Sketcher.Constraint("Symmetric", 10, 3, 16, 3, -1, 1))
sketch8.addConstraint(Sketcher.Constraint("Symmetric", 5, 3, 17, 3, -1, 1))
sketch8.addConstraint(Sketcher.Constraint("Symmetric", 4, 3, 18, 3, -1, 1))
sketch8.addConstraint(Sketcher.Constraint("Symmetric", 5, 3, 7, 3, -2))
sketch8.addConstraint(Sketcher.Constraint("Symmetric", 4, 3, 8, 3, -2))
sketch8.addConstraint(Sketcher.Constraint("Symmetric", 6, 3, 9, 3, -2))
sketch8.addConstraint(Sketcher.Constraint("Symmetric", 0, 2, 1, 2, -1))
sketch8.addConstraint(Sketcher.Constraint("PointOnObject", 10, 3, -1))
sketch8.addConstraint(Sketcher.Constraint("Horizontal", 4, 3, 5, 3))
sketch8.addConstraint(Sketcher.Constraint("Diameter", 4, 6.0))
sketch8.addConstraint(Sketcher.Constraint("Diameter", 6, 3.0))
sketch8.addConstraint(Sketcher.Constraint("Diameter", 14, 10.0))
sketch8.addConstraint(Sketcher.Constraint("Diameter", 10, 13.5))
sketch8.addConstraint(Sketcher.Constraint("Radius", 1, 17.8))
sketch8.addConstraint(Sketcher.Constraint("DistanceX", 0, 1, 0, 2, 180.0))
sketch8.addConstraint(Sketcher.Constraint("DistanceX", 10, 3, -1, 1, 75.0))
sketch8.addConstraint(Sketcher.Constraint("DistanceY", 0, 2, -1, 1, 16.0))
sketch8.addConstraint(Sketcher.Constraint("DistanceX", 4, 3, 7, 3, 150.0))
sketch8.addConstraint(Sketcher.Constraint("DistanceX", 4, 3, 5, 3, 16.617))
sketch8.addConstraint(Sketcher.Constraint("DistanceY", 4, 3, 12, 3, 16.617))
sketch8.addConstraint(Sketcher.Constraint("DistanceX", 6, 3, -1, 1, 5.3033))
sketch8.addConstraint(Sketcher.Constraint("DistanceY", 6, 3, -1, 1, 5.3033))
sketch8.setExpression("Constraints[33]", "Params.sketch8_diameter")
sketch8.setExpression("Constraints[34]", "Params.sketch8_diameter2")
sketch8.setExpression("Constraints[35]", "Params.sketch8_diameter3")
sketch8.setExpression("Constraints[36]", "Params.sketch8_diameter4")
sketch8.setExpression("Constraints[37]", "Params.sketch8_radius")
pad4 = body.newObject("PartDesign::Pad", "Pad003")
pad4.Profile = sketch8
pad4.setExpression("Length", "Params.pad4_length")

# Sketch on XZ plane
sketch9 = body.newObject("Sketcher::SketchObject", "Sketch008")
sketch9.AttachmentSupport = (doc.getObject("XZ_Plane"), [""])
sketch9.MapMode = "FlatFace"
sketch9.AttachmentOffset = App.Placement(Vector(0, 0, -20), App.Rotation())
sketch9.addGeometry(Part.LineSegment(Vector(-75, 7, 0), Vector(-75, 33, 0)), False)
sketch9.addGeometry(Part.ArcOfCircle(Part.Circle(Vector(-68, 33, 0), Vector(0, 0, 1), 7), math.radians(90), math.radians(180)), False)
sketch9.addGeometry(Part.LineSegment(Vector(-68, 40, 0), Vector(68, 40, 0)), False)
sketch9.addGeometry(Part.ArcOfCircle(Part.Circle(Vector(68, 33, 0), Vector(0, 0, 1), 7), math.radians(0), math.radians(90)), False)
sketch9.addGeometry(Part.LineSegment(Vector(75, 33, 0), Vector(75, 7, 0)), False)
sketch9.addGeometry(Part.ArcOfCircle(Part.Circle(Vector(68, 7, 0), Vector(0, 0, 1), 7), math.radians(-90), math.radians(0)), False)
sketch9.addGeometry(Part.LineSegment(Vector(68, 0, 0), Vector(58.5, 0, 0)), False)
sketch9.addGeometry(Part.LineSegment(Vector(58.5, 0, 0), Vector(-68, 0, 0)), False)
sketch9.addGeometry(Part.ArcOfCircle(Part.Circle(Vector(-68, 7, 0), Vector(0, 0, 1), 7), math.radians(180), math.radians(270)), False)
sketch9.addGeometry(Part.ArcOfCircle(Part.Circle(Vector(-68, 33, 0), Vector(0, 0, 1), 3), math.radians(90), math.radians(180)), False)
sketch9.addGeometry(Part.LineSegment(Vector(-71, 33, 0), Vector(-71, 7, 0)), False)
sketch9.addGeometry(Part.ArcOfCircle(Part.Circle(Vector(-68, 7, 0), Vector(0, 0, 1), 3), math.radians(180), math.radians(270)), False)
sketch9.addGeometry(Part.LineSegment(Vector(-68, 4, 0), Vector(-55, 4, 0)), False)
sketch9.addGeometry(Part.LineSegment(Vector(-55, 4, 0), Vector(-55, 36, 0)), False)
sketch9.addGeometry(Part.LineSegment(Vector(-55, 36, 0), Vector(-68, 36, 0)), False)
sketch9.addGeometry(Part.Circle(Vector(-45, 20, 0), Vector(0, 0, 1), 4), False)
sketch9.addGeometry(Part.LineSegment(Vector(35, 4, 0), Vector(35, 36, 0)), False)
sketch9.addGeometry(Part.LineSegment(Vector(35, 36, 0), Vector(-35, 36, 0)), False)
sketch9.addGeometry(Part.LineSegment(Vector(-35, 36, 0), Vector(-35, 4, 0)), False)
sketch9.addGeometry(Part.LineSegment(Vector(-35, 4, 0), Vector(35, 4, 0)), False)
sketch9.addGeometry(Part.Circle(Vector(45, 20, 0), Vector(0, 0, 1), 4), False)
sketch9.addGeometry(Part.LineSegment(Vector(55, 4, 0), Vector(58.5, 4, 0)), False)
sketch9.addGeometry(Part.LineSegment(Vector(58.5, 4, 0), Vector(68, 4, 0)), False)
sketch9.addGeometry(Part.ArcOfCircle(Part.Circle(Vector(68, 7, 0), Vector(0, 0, 1), 3), math.radians(-90), math.radians(0)), False)
sketch9.addGeometry(Part.LineSegment(Vector(71, 7, 0), Vector(71, 33, 0)), False)
sketch9.addGeometry(Part.ArcOfCircle(Part.Circle(Vector(68, 33, 0), Vector(0, 0, 1), 3), math.radians(0), math.radians(90)), False)
sketch9.addGeometry(Part.LineSegment(Vector(68, 36, 0), Vector(55, 36, 0)), False)
sketch9.addGeometry(Part.LineSegment(Vector(55, 36, 0), Vector(55, 4, 0)), False)
sketch9.addConstraint(Sketcher.Constraint("Tangent", 0, 2, 1, 2))
sketch9.addConstraint(Sketcher.Constraint("Tangent", 1, 1, 2, 1))
sketch9.addConstraint(Sketcher.Constraint("Tangent", 2, 2, 3, 2))
sketch9.addConstraint(Sketcher.Constraint("Tangent", 3, 1, 4, 1))
sketch9.addConstraint(Sketcher.Constraint("Tangent", 4, 2, 5, 2))
sketch9.addConstraint(Sketcher.Constraint("Tangent", 5, 1, 6, 1))
sketch9.addConstraint(Sketcher.Constraint("Coincident", 6, 2, 7, 1))
sketch9.addConstraint(Sketcher.Constraint("Tangent", 7, 2, 8, 2))
sketch9.addConstraint(Sketcher.Constraint("Tangent", 8, 1, 0, 1))
sketch9.addConstraint(Sketcher.Constraint("Tangent", 9, 2, 10, 1))
sketch9.addConstraint(Sketcher.Constraint("Tangent", 10, 2, 11, 1))
sketch9.addConstraint(Sketcher.Constraint("Tangent", 11, 2, 12, 1))
sketch9.addConstraint(Sketcher.Constraint("Coincident", 12, 2, 13, 1))
sketch9.addConstraint(Sketcher.Constraint("Coincident", 13, 2, 14, 1))
sketch9.addConstraint(Sketcher.Constraint("Tangent", 14, 2, 9, 1))
sketch9.addConstraint(Sketcher.Constraint("Coincident", 16, 2, 17, 1))
sketch9.addConstraint(Sketcher.Constraint("Coincident", 17, 2, 18, 1))
sketch9.addConstraint(Sketcher.Constraint("Coincident", 18, 2, 19, 1))
sketch9.addConstraint(Sketcher.Constraint("Coincident", 19, 2, 16, 1))
sketch9.addConstraint(Sketcher.Constraint("Coincident", 21, 2, 22, 1))
sketch9.addConstraint(Sketcher.Constraint("Tangent", 22, 2, 23, 1))
sketch9.addConstraint(Sketcher.Constraint("Tangent", 23, 2, 24, 1))
sketch9.addConstraint(Sketcher.Constraint("Tangent", 24, 2, 25, 1))
sketch9.addConstraint(Sketcher.Constraint("Tangent", 25, 2, 26, 1))
sketch9.addConstraint(Sketcher.Constraint("Coincident", 26, 2, 27, 1))
sketch9.addConstraint(Sketcher.Constraint("Coincident", 27, 2, 21, 1))
sketch9.addConstraint(Sketcher.Constraint("Vertical", 0))
sketch9.addConstraint(Sketcher.Constraint("Horizontal", 2))
sketch9.addConstraint(Sketcher.Constraint("Vertical", 4))
sketch9.addConstraint(Sketcher.Constraint("Horizontal", 6))
sketch9.addConstraint(Sketcher.Constraint("Horizontal", 7))
sketch9.addConstraint(Sketcher.Constraint("Vertical", 10))
sketch9.addConstraint(Sketcher.Constraint("Horizontal", 12))
sketch9.addConstraint(Sketcher.Constraint("Vertical", 13))
sketch9.addConstraint(Sketcher.Constraint("Horizontal", 14))
sketch9.addConstraint(Sketcher.Constraint("Vertical", 16))
sketch9.addConstraint(Sketcher.Constraint("Horizontal", 17))
sketch9.addConstraint(Sketcher.Constraint("Vertical", 18))
sketch9.addConstraint(Sketcher.Constraint("Horizontal", 19))
sketch9.addConstraint(Sketcher.Constraint("Horizontal", 21))
sketch9.addConstraint(Sketcher.Constraint("Horizontal", 22))
sketch9.addConstraint(Sketcher.Constraint("Vertical", 24))
sketch9.addConstraint(Sketcher.Constraint("Horizontal", 26))
sketch9.addConstraint(Sketcher.Constraint("Vertical", 27))
sketch9.addConstraint(Sketcher.Constraint("Coincident", 9, 3, 1, 3))
sketch9.addConstraint(Sketcher.Constraint("Coincident", 11, 3, 8, 3))
sketch9.addConstraint(Sketcher.Constraint("Coincident", 23, 3, 5, 3))
sketch9.addConstraint(Sketcher.Constraint("Coincident", 25, 3, 3, 3))
sketch9.addConstraint(Sketcher.Constraint("Equal", 1, 3))
sketch9.addConstraint(Sketcher.Constraint("Equal", 3, 5))
sketch9.addConstraint(Sketcher.Constraint("Equal", 5, 8))
sketch9.addConstraint(Sketcher.Constraint("Equal", 15, 20))
sketch9.addConstraint(Sketcher.Constraint("Equal", 11, 23))
sketch9.addConstraint(Sketcher.Constraint("Symmetric", 5, 1, 7, 2, -1, 1))
sketch9.addConstraint(Sketcher.Constraint("Symmetric", 15, 3, 20, 3, -2))
sketch9.addConstraint(Sketcher.Constraint("Horizontal", 14, 2, 16, 2))
sketch9.addConstraint(Sketcher.Constraint("Horizontal", 12, 2, 18, 2))
sketch9.addConstraint(Sketcher.Constraint("Vertical", 6, 2, 21, 2))
sketch9.addConstraint(Sketcher.Constraint("Equal", 14, 26))
sketch9.addConstraint(Sketcher.Constraint("Diameter", 15, 8.0))
sketch9.addConstraint(Sketcher.Constraint("DistanceY", -1, 1, 15, 3, 20.0))
sketch9.addConstraint(Sketcher.Constraint("DistanceY", -1, 1, 11, 2, 4.0))
sketch9.addConstraint(Sketcher.Constraint("Radius", 1, 7.0))
sketch9.addConstraint(Sketcher.Constraint("DistanceY", 15, 3, 1, 1, 20.0))
sketch9.addConstraint(Sketcher.Constraint("DistanceX", 13, 2, 17, 2, 20.0))
sketch9.addConstraint(Sketcher.Constraint("DistanceX", 2, 1, 2, 2, 136.0))
sketch9.addConstraint(Sketcher.Constraint("DistanceX", 12, 1, 12, 2, 13.0))
sketch9.addConstraint(Sketcher.Constraint("DistanceX", 17, 2, 17, 1, 70.0))
sketch9.addConstraint(Sketcher.Constraint("DistanceX", 6, 2, 6, 1, 9.5))
sketch9.addConstraint(Sketcher.Constraint("DistanceX", 15, 3, -1, 1, 45.0))
sketch9.setExpression("Constraints[59]", "Params.sketch9_diameter")
sketch9.setExpression("Constraints[62]", "Params.sketch9_radius")
sketch9.setExpression("Constraints[65]", "Params.sketch9_width")
sketch9.setExpression("Constraints[66]", "Params.sketch9_width2")
sketch9.setExpression("Constraints[67]", "Params.sketch9_width3")
pad5 = body.newObject("PartDesign::Pad", "Pad004")
pad5.Profile = sketch9
pad5.setExpression("Length", "Params.pad5_length")
pad5.Reversed = True

# Sketch on XZ plane
sketch10 = body.newObject("Sketcher::SketchObject", "Sketch009")
sketch10.AttachmentSupport = (doc.getObject("XZ_Plane"), [""])
sketch10.MapMode = "FlatFace"
sketch10.AttachmentOffset = App.Placement(Vector(0, 0, -20), App.Rotation())
sketch10.addGeometry(Part.Circle(Vector(-45, 20, 0), Vector(0, 0, 1), 4), False)
sketch10.addGeometry(Part.Circle(Vector(45, 20, 0), Vector(0, 0, 1), 4), False)
sketch10.addConstraint(Sketcher.Constraint("Equal", 0, 1))
sketch10.addConstraint(Sketcher.Constraint("Symmetric", 0, 3, 1, 3, -2))
sketch10.addConstraint(Sketcher.Constraint("Diameter", 0, 8.0))
sketch10.addConstraint(Sketcher.Constraint("DistanceX", 0, 3, -1, 1, 45.0))
sketch10.addConstraint(Sketcher.Constraint("DistanceY", -1, 1, 0, 3, 20.0))
sketch10.setExpression("Constraints[2]", "Params.sketch10_diameter")
pocket5 = body.newObject("PartDesign::Pocket", "Pocket004")
pocket5.Profile = sketch10
pocket5.setExpression("Length", "Params.pocket5_length")
pocket5.Reversed = True

# Sketch on XZ plane
sketch11 = body.newObject("Sketcher::SketchObject", "Sketch010")
sketch11.AttachmentSupport = (doc.getObject("XZ_Plane"), [""])
sketch11.MapMode = "FlatFace"
sketch11.AttachmentOffset = App.Placement(Vector(0, 0, 20), App.Rotation())
sketch11.addGeometry(Part.LineSegment(Vector(-55, 11, 0), Vector(55, 11, 0)), False)
sketch11.addGeometry(Part.ArcOfCircle(Part.Circle(Vector(55, 16, 0), Vector(0, 0, 1), 5), math.radians(-90), math.radians(0)), False)
sketch11.addGeometry(Part.LineSegment(Vector(60, 16, 0), Vector(60, 24, 0)), False)
sketch11.addGeometry(Part.ArcOfCircle(Part.Circle(Vector(55, 24, 0), Vector(0, 0, 1), 5), math.radians(0), math.radians(90)), False)
sketch11.addGeometry(Part.LineSegment(Vector(55, 29, 0), Vector(-55, 29, 0)), False)
sketch11.addGeometry(Part.ArcOfCircle(Part.Circle(Vector(-55, 24, 0), Vector(0, 0, 1), 5), math.radians(90), math.radians(180)), False)
sketch11.addGeometry(Part.LineSegment(Vector(-60, 24, 0), Vector(-60, 16, 0)), False)
sketch11.addGeometry(Part.ArcOfCircle(Part.Circle(Vector(-55, 16, 0), Vector(0, 0, 1), 5), math.radians(180), math.radians(270)), False)
sketch11.addConstraint(Sketcher.Constraint("Tangent", 0, 2, 1, 1))
sketch11.addConstraint(Sketcher.Constraint("Tangent", 1, 2, 2, 1))
sketch11.addConstraint(Sketcher.Constraint("Tangent", 2, 2, 3, 1))
sketch11.addConstraint(Sketcher.Constraint("Tangent", 3, 2, 4, 1))
sketch11.addConstraint(Sketcher.Constraint("Tangent", 4, 2, 5, 1))
sketch11.addConstraint(Sketcher.Constraint("Tangent", 5, 2, 6, 1))
sketch11.addConstraint(Sketcher.Constraint("Tangent", 6, 2, 7, 1))
sketch11.addConstraint(Sketcher.Constraint("Tangent", 7, 2, 0, 1))
sketch11.addConstraint(Sketcher.Constraint("Horizontal", 0))
sketch11.addConstraint(Sketcher.Constraint("Vertical", 2))
sketch11.addConstraint(Sketcher.Constraint("Horizontal", 4))
sketch11.addConstraint(Sketcher.Constraint("Vertical", 6))
sketch11.addConstraint(Sketcher.Constraint("Equal", 1, 3))
sketch11.addConstraint(Sketcher.Constraint("Equal", 3, 5))
sketch11.addConstraint(Sketcher.Constraint("Equal", 5, 7))
sketch11.addConstraint(Sketcher.Constraint("Radius", 1, 5.0))
sketch11.addConstraint(Sketcher.Constraint("DistanceY", 0, 2, 3, 2, 18.0))
sketch11.addConstraint(Sketcher.Constraint("DistanceX", 0, 1, 0, 2, 110.0))
sketch11.addConstraint(Sketcher.Constraint("DistanceX", -1, 1, 1, 3, 55.0))
sketch11.addConstraint(Sketcher.Constraint("DistanceY", -1, 1, 1, 3, 16.0))
sketch11.setExpression("Constraints[15]", "Params.sketch11_radius")
sketch11.setExpression("Constraints[17]", "Params.sketch11_width")
pocket6 = body.newObject("PartDesign::Pocket", "Pocket005")
pocket6.Profile = sketch11
pocket6.setExpression("Length", "Params.pocket6_length")

doc.recompute()
